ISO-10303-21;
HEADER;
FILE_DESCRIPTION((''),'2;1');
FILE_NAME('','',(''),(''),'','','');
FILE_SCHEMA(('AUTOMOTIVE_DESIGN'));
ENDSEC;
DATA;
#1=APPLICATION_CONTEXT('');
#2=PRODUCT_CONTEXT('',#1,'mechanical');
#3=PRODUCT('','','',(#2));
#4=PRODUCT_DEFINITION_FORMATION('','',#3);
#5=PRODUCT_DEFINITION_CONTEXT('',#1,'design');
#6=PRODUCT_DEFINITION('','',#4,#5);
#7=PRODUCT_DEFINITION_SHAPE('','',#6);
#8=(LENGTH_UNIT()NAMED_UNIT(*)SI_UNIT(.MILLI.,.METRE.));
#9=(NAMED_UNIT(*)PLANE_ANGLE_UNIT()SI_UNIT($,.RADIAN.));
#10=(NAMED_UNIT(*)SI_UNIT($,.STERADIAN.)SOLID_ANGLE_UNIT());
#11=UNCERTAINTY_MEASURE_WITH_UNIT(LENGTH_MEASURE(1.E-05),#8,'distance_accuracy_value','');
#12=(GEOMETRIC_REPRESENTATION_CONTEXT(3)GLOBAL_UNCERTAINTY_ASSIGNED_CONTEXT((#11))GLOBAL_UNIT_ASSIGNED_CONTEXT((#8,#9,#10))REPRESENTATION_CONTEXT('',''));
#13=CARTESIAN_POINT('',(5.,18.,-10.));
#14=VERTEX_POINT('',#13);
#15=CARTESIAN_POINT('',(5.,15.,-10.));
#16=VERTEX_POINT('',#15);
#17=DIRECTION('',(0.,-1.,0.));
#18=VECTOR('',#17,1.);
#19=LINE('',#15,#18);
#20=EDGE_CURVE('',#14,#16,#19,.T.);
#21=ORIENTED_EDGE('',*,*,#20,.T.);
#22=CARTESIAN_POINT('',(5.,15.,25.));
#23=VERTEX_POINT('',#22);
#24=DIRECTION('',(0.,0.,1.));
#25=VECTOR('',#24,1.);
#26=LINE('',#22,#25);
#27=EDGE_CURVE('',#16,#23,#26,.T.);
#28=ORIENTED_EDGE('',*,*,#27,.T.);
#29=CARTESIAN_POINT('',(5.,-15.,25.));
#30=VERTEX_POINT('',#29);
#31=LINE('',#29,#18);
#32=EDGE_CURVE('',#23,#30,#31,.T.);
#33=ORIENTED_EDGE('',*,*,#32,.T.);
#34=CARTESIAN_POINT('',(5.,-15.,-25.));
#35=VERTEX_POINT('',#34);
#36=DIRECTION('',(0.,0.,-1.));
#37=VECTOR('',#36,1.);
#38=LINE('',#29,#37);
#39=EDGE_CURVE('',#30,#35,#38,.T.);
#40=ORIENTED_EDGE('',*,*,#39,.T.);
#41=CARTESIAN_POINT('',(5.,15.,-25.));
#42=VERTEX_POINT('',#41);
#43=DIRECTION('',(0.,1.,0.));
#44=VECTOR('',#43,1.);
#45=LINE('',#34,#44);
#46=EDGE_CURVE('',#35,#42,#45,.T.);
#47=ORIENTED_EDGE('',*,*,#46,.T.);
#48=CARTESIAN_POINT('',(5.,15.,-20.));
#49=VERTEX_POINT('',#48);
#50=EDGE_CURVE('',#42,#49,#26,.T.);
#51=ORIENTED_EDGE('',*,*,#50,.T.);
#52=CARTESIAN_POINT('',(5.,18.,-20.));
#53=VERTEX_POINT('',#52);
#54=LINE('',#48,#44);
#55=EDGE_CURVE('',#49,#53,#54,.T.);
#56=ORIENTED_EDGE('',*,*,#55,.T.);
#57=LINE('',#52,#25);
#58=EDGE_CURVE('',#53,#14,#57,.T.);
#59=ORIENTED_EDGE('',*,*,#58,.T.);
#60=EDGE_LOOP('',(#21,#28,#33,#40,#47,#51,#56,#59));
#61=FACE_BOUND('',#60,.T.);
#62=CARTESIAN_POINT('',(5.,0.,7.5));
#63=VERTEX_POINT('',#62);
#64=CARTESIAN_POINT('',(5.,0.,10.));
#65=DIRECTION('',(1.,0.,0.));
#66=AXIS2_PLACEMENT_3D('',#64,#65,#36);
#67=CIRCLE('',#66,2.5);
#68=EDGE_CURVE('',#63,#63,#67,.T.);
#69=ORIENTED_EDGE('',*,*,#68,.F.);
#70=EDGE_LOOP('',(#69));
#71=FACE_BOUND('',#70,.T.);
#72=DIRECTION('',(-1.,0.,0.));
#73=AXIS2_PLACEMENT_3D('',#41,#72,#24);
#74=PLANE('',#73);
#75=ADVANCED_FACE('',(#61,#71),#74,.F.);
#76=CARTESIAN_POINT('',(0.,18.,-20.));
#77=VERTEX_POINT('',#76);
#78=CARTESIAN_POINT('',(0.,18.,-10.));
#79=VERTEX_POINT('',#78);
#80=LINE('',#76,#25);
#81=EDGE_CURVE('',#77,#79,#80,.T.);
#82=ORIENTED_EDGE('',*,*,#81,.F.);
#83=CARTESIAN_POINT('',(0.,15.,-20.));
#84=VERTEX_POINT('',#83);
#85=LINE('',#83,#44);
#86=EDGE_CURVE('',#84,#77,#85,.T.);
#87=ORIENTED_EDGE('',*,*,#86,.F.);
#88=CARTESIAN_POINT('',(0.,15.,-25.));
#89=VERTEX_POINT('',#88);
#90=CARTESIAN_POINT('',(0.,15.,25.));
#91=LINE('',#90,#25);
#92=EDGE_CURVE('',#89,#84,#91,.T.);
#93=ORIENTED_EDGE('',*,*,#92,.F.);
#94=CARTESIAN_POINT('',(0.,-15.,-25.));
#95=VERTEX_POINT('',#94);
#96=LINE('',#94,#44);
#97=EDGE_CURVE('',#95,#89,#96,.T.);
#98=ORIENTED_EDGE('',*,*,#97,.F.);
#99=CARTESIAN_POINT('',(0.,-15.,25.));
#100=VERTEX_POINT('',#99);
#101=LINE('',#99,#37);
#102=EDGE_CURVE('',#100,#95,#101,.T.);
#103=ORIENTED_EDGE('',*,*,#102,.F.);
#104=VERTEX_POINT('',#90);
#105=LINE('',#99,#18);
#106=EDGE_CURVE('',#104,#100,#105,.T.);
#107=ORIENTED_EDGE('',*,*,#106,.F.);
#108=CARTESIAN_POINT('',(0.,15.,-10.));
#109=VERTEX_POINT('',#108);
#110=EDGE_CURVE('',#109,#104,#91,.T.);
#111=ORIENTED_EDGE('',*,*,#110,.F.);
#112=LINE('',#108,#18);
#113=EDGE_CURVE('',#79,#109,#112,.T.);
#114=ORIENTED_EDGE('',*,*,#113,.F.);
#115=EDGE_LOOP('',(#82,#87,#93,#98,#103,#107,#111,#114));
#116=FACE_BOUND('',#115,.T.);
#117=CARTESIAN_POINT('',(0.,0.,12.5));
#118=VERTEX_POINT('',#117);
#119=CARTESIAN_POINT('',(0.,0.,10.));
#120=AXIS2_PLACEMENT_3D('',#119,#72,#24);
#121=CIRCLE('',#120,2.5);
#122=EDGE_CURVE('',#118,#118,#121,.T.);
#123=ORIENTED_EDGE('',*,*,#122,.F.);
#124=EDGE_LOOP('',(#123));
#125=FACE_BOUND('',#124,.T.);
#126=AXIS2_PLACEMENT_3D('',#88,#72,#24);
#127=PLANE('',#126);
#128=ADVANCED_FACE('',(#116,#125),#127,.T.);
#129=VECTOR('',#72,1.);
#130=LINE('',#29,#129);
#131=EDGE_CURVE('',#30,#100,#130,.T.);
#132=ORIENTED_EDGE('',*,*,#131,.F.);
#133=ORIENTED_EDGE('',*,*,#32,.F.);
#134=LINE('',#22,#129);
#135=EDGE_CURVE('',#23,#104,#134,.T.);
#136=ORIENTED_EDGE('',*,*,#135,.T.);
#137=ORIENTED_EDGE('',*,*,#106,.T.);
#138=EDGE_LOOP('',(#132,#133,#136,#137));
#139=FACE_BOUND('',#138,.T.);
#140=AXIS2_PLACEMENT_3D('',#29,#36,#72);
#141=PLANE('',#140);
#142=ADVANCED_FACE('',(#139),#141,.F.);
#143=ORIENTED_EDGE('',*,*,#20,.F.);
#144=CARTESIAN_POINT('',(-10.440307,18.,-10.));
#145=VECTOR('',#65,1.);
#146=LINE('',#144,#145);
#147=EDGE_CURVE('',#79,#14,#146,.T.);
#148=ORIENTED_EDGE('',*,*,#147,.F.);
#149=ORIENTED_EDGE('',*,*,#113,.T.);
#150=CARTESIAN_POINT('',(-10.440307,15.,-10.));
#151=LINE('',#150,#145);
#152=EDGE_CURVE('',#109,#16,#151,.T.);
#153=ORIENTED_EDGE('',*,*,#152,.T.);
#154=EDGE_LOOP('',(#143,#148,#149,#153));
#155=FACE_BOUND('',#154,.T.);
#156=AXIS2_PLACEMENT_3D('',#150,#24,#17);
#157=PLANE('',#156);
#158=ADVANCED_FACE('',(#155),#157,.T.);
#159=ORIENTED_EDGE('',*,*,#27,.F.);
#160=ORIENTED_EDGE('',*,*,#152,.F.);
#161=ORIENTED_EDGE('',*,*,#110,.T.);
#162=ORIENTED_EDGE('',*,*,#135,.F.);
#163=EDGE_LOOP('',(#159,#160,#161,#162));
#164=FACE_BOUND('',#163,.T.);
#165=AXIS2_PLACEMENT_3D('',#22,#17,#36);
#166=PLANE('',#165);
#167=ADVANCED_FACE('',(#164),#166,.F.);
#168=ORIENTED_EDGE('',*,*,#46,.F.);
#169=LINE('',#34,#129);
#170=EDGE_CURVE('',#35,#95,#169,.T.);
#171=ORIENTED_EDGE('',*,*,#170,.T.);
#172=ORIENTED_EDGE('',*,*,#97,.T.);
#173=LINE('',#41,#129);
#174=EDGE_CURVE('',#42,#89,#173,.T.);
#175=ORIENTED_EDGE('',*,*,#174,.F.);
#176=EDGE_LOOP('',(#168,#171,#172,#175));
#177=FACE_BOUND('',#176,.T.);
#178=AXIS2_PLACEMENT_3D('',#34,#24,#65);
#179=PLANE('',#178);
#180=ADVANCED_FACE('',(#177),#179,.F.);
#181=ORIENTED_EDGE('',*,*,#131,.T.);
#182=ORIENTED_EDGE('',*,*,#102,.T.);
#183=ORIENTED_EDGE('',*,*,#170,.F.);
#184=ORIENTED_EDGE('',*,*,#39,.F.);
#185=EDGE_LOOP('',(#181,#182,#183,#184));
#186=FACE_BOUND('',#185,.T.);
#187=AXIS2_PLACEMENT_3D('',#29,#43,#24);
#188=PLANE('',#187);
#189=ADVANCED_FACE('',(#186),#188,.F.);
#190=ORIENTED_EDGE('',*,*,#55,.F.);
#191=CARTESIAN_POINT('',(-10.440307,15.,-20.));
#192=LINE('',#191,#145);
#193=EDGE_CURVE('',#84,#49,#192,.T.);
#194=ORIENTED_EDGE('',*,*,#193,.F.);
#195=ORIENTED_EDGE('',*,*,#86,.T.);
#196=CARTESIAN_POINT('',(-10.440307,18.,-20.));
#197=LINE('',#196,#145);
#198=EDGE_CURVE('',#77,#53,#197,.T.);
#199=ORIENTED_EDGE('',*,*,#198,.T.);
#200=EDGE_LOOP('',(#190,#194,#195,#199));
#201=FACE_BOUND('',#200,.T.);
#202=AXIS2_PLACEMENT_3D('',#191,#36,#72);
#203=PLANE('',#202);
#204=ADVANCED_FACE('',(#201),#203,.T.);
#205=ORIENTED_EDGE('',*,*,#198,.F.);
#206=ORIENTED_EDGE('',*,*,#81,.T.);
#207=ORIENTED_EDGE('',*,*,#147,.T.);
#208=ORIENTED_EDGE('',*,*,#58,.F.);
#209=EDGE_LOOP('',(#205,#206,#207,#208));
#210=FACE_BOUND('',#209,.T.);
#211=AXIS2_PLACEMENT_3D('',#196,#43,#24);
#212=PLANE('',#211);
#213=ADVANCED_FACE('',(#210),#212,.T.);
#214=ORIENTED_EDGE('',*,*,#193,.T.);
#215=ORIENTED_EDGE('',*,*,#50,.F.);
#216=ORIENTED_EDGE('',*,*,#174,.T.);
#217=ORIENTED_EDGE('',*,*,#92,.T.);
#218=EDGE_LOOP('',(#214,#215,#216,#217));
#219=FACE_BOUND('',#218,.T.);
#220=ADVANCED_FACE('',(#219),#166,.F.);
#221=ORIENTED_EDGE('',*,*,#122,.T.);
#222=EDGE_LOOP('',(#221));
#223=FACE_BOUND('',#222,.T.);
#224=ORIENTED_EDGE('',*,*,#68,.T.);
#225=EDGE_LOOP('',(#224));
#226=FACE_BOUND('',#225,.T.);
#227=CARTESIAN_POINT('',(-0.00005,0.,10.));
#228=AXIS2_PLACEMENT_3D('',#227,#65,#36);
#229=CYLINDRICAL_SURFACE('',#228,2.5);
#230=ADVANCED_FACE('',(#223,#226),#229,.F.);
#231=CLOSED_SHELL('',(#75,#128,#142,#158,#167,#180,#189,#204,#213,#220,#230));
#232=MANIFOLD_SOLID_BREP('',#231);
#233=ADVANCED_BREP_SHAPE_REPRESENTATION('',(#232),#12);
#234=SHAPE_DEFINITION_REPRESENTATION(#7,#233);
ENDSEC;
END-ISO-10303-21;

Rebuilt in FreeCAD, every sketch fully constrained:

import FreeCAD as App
import Part
import Sketcher
Q = App.Units.Quantity

doc = App.newDocument("Part")
body = doc.addObject("PartDesign::Body", "Body")

# Sketch on YZ plane
sketch1 = body.newObject("Sketcher::SketchObject", "Sketch")
sketch1.AttachmentSupport = (doc.getObject("YZ_Plane"), [""])
sketch1.MapMode = "FlatFace"
sketch1.addGeometry([
    Part.LineSegment(App.Vector(15, 25, 0), App.Vector(-15, 25, 0)),
    Part.LineSegment(App.Vector(-15, 25, 0), App.Vector(-15, -25, 0)),
    Part.LineSegment(App.Vector(-15, -25, 0), App.Vector(15, -25, 0)),
    Part.LineSegment(App.Vector(15, -25, 0), App.Vector(15, 25, 0)),
], False)
sketch1.addConstraint([
    Sketcher.Constraint("Coincident", 0, 2, 1, 1),
    Sketcher.Constraint("Coincident", 1, 2, 2, 1),
    Sketcher.Constraint("Coincident", 2, 2, 3, 1),
    Sketcher.Constraint("Coincident", 3, 2, 0, 1),
    Sketcher.Constraint("Horizontal", 0),
    Sketcher.Constraint("Vertical", 1),
    Sketcher.Constraint("Horizontal", 2),
    Sketcher.Constraint("Vertical", 3),
    Sketcher.Constraint("Symmetric", 0, 2, 2, 2, -1, 1),
    Sketcher.Constraint("DistanceX", 0, 2, 0, 1, Q("30 mm")),
    Sketcher.Constraint("DistanceY", 1, 2, 1, 1, Q("50 mm")),
])
pad1 = body.newObject("PartDesign::Pad", "Pad")
pad1.Profile = sketch1
pad1.Length = 5

# Sketch on YZ plane
sketch2 = body.newObject("Sketcher::SketchObject", "Sketch001")
sketch2.AttachmentSupport = (doc.getObject("YZ_Plane"), [""])
sketch2.MapMode = "FlatFace"
sketch2.AttachmentOffset = App.Placement(App.Vector(0, 0, 5), App.Rotation())
sketch2.addGeometry([
    Part.LineSegment(App.Vector(18, -10, 0), App.Vector(15, -10, 0)),
    Part.LineSegment(App.Vector(15, -10, 0), App.Vector(15, -20, 0)),
    Part.LineSegment(App.Vector(15, -20, 0), App.Vector(18, -20, 0)),
    Part.LineSegment(App.Vector(18, -20, 0), App.Vector(18, -10, 0)),
], False)
sketch2.addConstraint([
    Sketcher.Constraint("Coincident", 0, 2, 1, 1),
    Sketcher.Constraint("Coincident", 1, 2, 2, 1),
    Sketcher.Constraint("Coincident", 2, 2, 3, 1),
    Sketcher.Constraint("Coincident", 3, 2, 0, 1),
    Sketcher.Constraint("Horizontal", 0),
    Sketcher.Constraint("Vertical", 1),
    Sketcher.Constraint("Horizontal", 2),
    Sketcher.Constraint("Vertical", 3),
    Sketcher.Constraint("DistanceX", 0, 2, 0, 1, Q("3 mm")),
    Sketcher.Constraint("DistanceY", 1, 2, 1, 1, Q("10 mm")),
    Sketcher.Constraint("DistanceX", -1, 1, 0, 2, Q("15 mm")),
    Sketcher.Constraint("DistanceY", 0, 2, -1, 1, Q("10 mm")),
])
pad2 = body.newObject("PartDesign::Pad", "Pad001")
pad2.Profile = sketch2
pad2.Length = 5
pad2.Reversed = True

# Sketch on YZ plane
sketch3 = body.newObject("Sketcher::SketchObject", "Sketch002")
sketch3.AttachmentSupport = (doc.getObject("YZ_Plane"), [""])
sketch3.MapMode = "FlatFace"
sketch3.AttachmentOffset = App.Placement(App.Vector(0, 0, 5), App.Rotation())
sketch3.addGeometry(Part.Circle(App.Vector(0, 10, 0), App.Vector(0, 0, 1), 2.5), False)
sketch3.addConstraint([
    Sketcher.Constraint("PointOnObject", 0, 3, -2),
    Sketcher.Constraint("Diameter", 0, Q("5 mm")),
    Sketcher.Constraint("DistanceY", -1, 1, 0, 3, Q("10 mm")),
])
pocket1 = body.newObject("PartDesign::Pocket", "Pocket")
pocket1.Profile = sketch3
pocket1.Type = "ThroughAll"

doc.recompute()
